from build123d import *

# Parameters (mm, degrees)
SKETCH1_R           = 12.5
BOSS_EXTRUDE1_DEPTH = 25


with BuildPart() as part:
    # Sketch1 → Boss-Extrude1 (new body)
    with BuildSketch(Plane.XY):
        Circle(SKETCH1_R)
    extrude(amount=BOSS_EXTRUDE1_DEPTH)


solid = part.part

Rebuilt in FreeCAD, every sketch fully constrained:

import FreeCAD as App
import Part
import Sketcher

V = App.Vector
Q = App.Units.Quantity

doc = App.newDocument("Part")
body = doc.addObject("PartDesign::Body", "Body")

sketch1 = body.newObject("Sketcher::SketchObject", "Sketch")
sketch1.AttachmentSupport = (doc.getObject("XY_Plane"), [""])
sketch1.MapMode = "FlatFace"
sketch1.addGeometry(Part.Circle(V(0, 0, 0), V(0, 0, 1), 12), False)
sketch1.addConstraint([
    Sketcher.Constraint("Coincident", 0, 3, -1, 1),
    Sketcher.Constraint("Diameter", 0, Q("25 mm")),
])
pad1 = body.newObject("PartDesign::Pad", "Pad")
pad1.Profile = sketch1
pad1.Length = 25

doc.recompute()
